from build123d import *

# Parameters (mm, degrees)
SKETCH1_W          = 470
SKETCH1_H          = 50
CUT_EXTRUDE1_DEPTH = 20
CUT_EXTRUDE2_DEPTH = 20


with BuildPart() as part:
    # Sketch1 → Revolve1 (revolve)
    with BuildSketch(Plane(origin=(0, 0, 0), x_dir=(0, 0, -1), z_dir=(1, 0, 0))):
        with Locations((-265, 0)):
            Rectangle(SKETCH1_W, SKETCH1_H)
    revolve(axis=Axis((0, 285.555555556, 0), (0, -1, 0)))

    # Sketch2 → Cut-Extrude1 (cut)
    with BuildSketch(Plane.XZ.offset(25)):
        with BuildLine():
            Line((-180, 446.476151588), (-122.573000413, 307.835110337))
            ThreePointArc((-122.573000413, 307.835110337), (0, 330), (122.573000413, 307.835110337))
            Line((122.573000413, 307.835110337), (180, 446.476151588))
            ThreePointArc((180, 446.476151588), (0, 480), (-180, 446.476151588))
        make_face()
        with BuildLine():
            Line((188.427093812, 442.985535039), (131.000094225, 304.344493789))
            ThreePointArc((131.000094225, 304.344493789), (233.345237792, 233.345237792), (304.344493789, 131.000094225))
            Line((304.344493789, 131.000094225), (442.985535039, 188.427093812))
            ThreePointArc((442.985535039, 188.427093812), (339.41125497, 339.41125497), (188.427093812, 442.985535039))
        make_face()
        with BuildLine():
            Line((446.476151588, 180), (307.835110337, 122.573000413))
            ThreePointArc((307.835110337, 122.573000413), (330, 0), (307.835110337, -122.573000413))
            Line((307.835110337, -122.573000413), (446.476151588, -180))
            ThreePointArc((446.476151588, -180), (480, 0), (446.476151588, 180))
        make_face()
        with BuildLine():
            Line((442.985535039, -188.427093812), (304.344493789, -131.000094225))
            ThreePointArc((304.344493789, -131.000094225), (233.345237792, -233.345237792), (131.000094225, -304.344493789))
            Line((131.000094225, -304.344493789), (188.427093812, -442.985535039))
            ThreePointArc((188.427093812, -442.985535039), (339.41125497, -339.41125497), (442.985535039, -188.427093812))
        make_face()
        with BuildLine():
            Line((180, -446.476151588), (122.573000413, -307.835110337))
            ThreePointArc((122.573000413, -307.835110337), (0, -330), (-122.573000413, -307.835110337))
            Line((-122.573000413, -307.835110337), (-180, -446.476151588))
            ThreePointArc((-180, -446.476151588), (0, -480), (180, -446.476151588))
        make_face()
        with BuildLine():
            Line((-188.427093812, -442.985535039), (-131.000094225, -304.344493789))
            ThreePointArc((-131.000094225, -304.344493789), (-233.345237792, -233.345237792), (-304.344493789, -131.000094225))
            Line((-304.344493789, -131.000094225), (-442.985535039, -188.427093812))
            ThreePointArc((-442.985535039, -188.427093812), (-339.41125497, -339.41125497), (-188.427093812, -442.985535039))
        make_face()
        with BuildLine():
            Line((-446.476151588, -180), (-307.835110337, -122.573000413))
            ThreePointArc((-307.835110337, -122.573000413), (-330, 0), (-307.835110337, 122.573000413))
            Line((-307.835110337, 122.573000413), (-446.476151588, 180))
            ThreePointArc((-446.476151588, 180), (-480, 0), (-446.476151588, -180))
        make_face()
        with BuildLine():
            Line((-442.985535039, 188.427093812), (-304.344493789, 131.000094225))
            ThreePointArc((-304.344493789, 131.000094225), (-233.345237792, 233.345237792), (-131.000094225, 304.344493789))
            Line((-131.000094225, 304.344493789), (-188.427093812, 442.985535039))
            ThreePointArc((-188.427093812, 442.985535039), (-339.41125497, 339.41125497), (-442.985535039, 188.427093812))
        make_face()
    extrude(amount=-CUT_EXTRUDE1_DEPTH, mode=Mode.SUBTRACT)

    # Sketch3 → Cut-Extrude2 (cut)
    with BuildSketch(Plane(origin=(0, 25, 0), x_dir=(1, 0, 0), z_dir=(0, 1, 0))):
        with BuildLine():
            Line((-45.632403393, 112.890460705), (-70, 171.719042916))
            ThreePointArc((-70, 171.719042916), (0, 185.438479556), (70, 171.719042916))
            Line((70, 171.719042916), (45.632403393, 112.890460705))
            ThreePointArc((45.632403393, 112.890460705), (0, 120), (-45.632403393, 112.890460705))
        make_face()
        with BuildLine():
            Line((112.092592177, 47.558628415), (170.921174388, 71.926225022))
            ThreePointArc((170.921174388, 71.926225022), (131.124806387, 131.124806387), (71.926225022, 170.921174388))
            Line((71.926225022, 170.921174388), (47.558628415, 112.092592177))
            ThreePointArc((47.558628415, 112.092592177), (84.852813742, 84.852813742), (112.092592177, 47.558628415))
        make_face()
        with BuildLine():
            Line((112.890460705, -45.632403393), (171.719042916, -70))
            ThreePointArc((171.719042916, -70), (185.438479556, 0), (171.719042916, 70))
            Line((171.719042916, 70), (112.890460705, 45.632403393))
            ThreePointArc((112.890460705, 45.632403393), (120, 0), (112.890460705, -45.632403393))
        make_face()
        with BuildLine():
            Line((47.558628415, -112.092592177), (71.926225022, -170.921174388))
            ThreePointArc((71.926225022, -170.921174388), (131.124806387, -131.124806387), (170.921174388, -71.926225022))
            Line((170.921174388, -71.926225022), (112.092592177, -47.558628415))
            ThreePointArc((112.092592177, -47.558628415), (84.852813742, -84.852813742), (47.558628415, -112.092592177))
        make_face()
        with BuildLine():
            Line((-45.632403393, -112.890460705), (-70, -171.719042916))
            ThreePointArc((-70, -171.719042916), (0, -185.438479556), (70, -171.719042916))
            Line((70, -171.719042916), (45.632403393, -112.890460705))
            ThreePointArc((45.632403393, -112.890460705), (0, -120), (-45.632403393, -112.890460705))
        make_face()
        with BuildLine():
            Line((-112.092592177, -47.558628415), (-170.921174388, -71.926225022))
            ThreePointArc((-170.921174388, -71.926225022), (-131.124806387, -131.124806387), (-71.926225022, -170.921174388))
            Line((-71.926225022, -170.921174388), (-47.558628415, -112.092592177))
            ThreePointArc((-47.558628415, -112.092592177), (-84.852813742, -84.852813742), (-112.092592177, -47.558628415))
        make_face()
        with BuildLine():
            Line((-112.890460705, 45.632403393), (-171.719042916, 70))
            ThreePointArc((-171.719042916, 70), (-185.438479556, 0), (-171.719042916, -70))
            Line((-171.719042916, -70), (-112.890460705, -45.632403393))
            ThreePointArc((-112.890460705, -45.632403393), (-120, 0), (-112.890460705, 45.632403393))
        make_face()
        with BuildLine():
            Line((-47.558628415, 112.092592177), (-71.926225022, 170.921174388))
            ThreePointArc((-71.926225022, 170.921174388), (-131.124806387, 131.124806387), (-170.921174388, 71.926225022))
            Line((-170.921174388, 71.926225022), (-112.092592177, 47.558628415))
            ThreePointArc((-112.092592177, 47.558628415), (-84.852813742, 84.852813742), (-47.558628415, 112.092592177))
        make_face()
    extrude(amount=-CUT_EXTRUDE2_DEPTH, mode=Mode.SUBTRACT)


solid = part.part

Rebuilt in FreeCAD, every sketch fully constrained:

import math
import FreeCAD as App
import Part
import Sketcher
Q = App.Units.Quantity

doc = App.newDocument("Part")
body = doc.addObject("PartDesign::Body", "Body")

sketch1 = body.newObject("Sketcher::SketchObject", "Sketch")
sketch1.AttachmentSupport = (doc.getObject("YZ_Plane"), [""])
sketch1.MapMode = "FlatFace"
sketch1.addGeometry([
    Part.LineSegment(App.Vector(25, 500, 0), App.Vector(-25, 500, 0)),
    Part.LineSegment(App.Vector(-25, 500, 0), App.Vector(-25, 30, 0)),
    Part.LineSegment(App.Vector(-25, 30, 0), App.Vector(25, 30, 0)),
    Part.LineSegment(App.Vector(25, 30, 0), App.Vector(25, 500, 0)),
], False)
sketch1.addConstraint([
    Sketcher.Constraint("Coincident", 0, 2, 1, 1),
    Sketcher.Constraint("Coincident", 1, 2, 2, 1),
    Sketcher.Constraint("Coincident", 2, 2, 3, 1),
    Sketcher.Constraint("Coincident", 3, 2, 0, 1),
    Sketcher.Constraint("Horizontal", 0),
    Sketcher.Constraint("Vertical", 1),
    Sketcher.Constraint("Horizontal", 2),
    Sketcher.Constraint("Vertical", 3),
    Sketcher.Constraint("DistanceX", 0, 2, 0, 1, 50.0),
    Sketcher.Constraint("DistanceY", 1, 2, 1, 1, 470.0),
    Sketcher.Constraint("DistanceX", 0, 2, -1, 1, 25.0),
    Sketcher.Constraint("DistanceY", -1, 1, 0, 2, 500.0),
])
revolution = body.newObject("PartDesign::Revolution", "Revolution")
revolution.Profile = sketch1
revolution.ReferenceAxis = (sketch1, ["H_Axis"])
revolution.Angle = 360

sketch2 = body.newObject("Sketcher::SketchObject", "Sketch001")
sketch2.AttachmentSupport = (doc.getObject("XZ_Plane"), [""])
sketch2.MapMode = "FlatFace"
sketch2.AttachmentOffset = App.Placement(App.Vector(0, 0, 25), App.Rotation())
sketch2.addGeometry([
    Part.LineSegment(App.Vector(-180, 446.476152, 0), App.Vector(-122.573, 307.83511, 0)),
    Part.ArcOfCircle(Part.Circle(App.Vector(0, -20, 0), App.Vector(0, 0, 1), 350), math.radians(69.499927), math.radians(110.500073)),
    Part.LineSegment(App.Vector(122.573, 307.83511, 0), App.Vector(180, 446.476152, 0)),
    Part.ArcOfCircle(Part.Circle(App.Vector(0, -20, 0), App.Vector(0, 0, 1), 500), math.radians(68.899804), math.radians(111.100196)),
    Part.LineSegment(App.Vector(188.427094, 442.985535, 0), App.Vector(131.000094, 304.344494, 0)),
    Part.ArcOfCircle(Part.Circle(App.Vector(-14.142136, -14.142136, 0), App.Vector(0, 0, 1), 350), math.radians(24.499927), math.radians(65.500073)),
    Part.LineSegment(App.Vector(304.344494, 131.000094, 0), App.Vector(442.985535, 188.427094, 0)),
    Part.ArcOfCircle(Part.Circle(App.Vector(-14.142136, -14.142136, 0), App.Vector(0, 0, 1), 500), math.radians(23.899804), math.radians(66.100196)),
    Part.LineSegment(App.Vector(446.476152, 180, 0), App.Vector(307.83511, 122.573, 0)),
    Part.ArcOfCircle(Part.Circle(App.Vector(-20, 0, 0), App.Vector(0, 0, 1), 350), math.radians(-20.500073), math.radians(20.500073)),
    Part.LineSegment(App.Vector(307.83511, -122.573, 0), App.Vector(446.476152, -180, 0)),
    Part.ArcOfCircle(Part.Circle(App.Vector(-20, 0, 0), App.Vector(0, 0, 1), 500), math.radians(-21.100196), math.radians(21.100196)),
    Part.LineSegment(App.Vector(442.985535, -188.427094, 0), App.Vector(304.344494, -131.000094, 0)),
    Part.ArcOfCircle(Part.Circle(App.Vector(-14.142136, 14.142136, 0), App.Vector(0, 0, 1), 350), math.radians(-65.500073), math.radians(-24.499927)),
    Part.LineSegment(App.Vector(131.000094, -304.344494, 0), App.Vector(188.427094, -442.985535, 0)),
    Part.ArcOfCircle(Part.Circle(App.Vector(-14.142136, 14.142136, 0), App.Vector(0, 0, 1), 500), math.radians(-66.100196), math.radians(-23.899804)),
    Part.LineSegment(App.Vector(180, -446.476152, 0), App.Vector(122.573, -307.83511, 0)),
    Part.ArcOfCircle(Part.Circle(App.Vector(0, 20, 0), App.Vector(0, 0, 1), 350), math.radians(-110.500073), math.radians(-69.499927)),
    Part.LineSegment(App.Vector(-122.573, -307.83511, 0), App.Vector(-180, -446.476152, 0)),
    Part.ArcOfCircle(Part.Circle(App.Vector(0, 20, 0), App.Vector(0, 0, 1), 500), math.radians(-111.100196), math.radians(-68.899804)),
    Part.LineSegment(App.Vector(-188.427094, -442.985535, 0), App.Vector(-131.000094, -304.344494, 0)),
    Part.ArcOfCircle(Part.Circle(App.Vector(14.142136, 14.142136, 0), App.Vector(0, 0, 1), 350), math.radians(-155.500073), math.radians(-114.499927)),
    Part.LineSegment(App.Vector(-304.344494, -131.000094, 0), App.Vector(-442.985535, -188.427094, 0)),
    Part.ArcOfCircle(Part.Circle(App.Vector(14.142136, 14.142136, 0), App.Vector(0, 0, 1), 500), math.radians(-156.100196), math.radians(-113.899804)),
    Part.LineSegment(App.Vector(-446.476152, -180, 0), App.Vector(-307.83511, -122.573, 0)),
    Part.ArcOfCircle(Part.Circle(App.Vector(20, 0, 0), App.Vector(0, 0, 1), 350), math.radians(159.499927), math.radians(200.500073)),
    Part.LineSegment(App.Vector(-307.83511, 122.573, 0), App.Vector(-446.476152, 180, 0)),
    Part.ArcOfCircle(Part.Circle(App.Vector(20, 0, 0), App.Vector(0, 0, 1), 500), math.radians(158.899804), math.radians(201.100196)),
    Part.LineSegment(App.Vector(-442.985535, 188.427094, 0), App.Vector(-304.344494, 131.000094, 0)),
    Part.ArcOfCircle(Part.Circle(App.Vector(14.142136, -14.142136, 0), App.Vector(0, 0, 1), 350), math.radians(114.499927), math.radians(155.500073)),
    Part.LineSegment(App.Vector(-131.000094, 304.344494, 0), App.Vector(-188.427094, 442.985535, 0)),
    Part.ArcOfCircle(Part.Circle(App.Vector(14.142136, -14.142136, 0), App.Vector(0, 0, 1), 500), math.radians(113.899804), math.radians(156.100196)),
], False)
sketch2.addConstraint([
    Sketcher.Constraint("Coincident", 0, 2, 1, 2),
    Sketcher.Constraint("Coincident", 1, 1, 2, 1),
    Sketcher.Constraint("Coincident", 2, 2, 3, 1),
    Sketcher.Constraint("Coincident", 3, 2, 0, 1),
    Sketcher.Constraint("Coincident", 4, 2, 5, 2),
    Sketcher.Constraint("Coincident", 5, 1, 6, 1),
    Sketcher.Constraint("Coincident", 6, 2, 7, 1),
    Sketcher.Constraint("Coincident", 7, 2, 4, 1),
    Sketcher.Constraint("Coincident", 8, 2, 9, 2),
    Sketcher.Constraint("Coincident", 9, 1, 10, 1),
    Sketcher.Constraint("Coincident", 10, 2, 11, 1),
    Sketcher.Constraint("Coincident", 11, 2, 8, 1),
    Sketcher.Constraint("Coincident", 12, 2, 13, 2),
    Sketcher.Constraint("Coincident", 13, 1, 14, 1),
    Sketcher.Constraint("Coincident", 14, 2, 15, 1),
    Sketcher.Constraint("Coincident", 15, 2, 12, 1),
    Sketcher.Constraint("Coincident", 16, 2, 17, 2),
    Sketcher.Constraint("Coincident", 17, 1, 18, 1),
    Sketcher.Constraint("Coincident", 18, 2, 19, 1),
    Sketcher.Constraint("Coincident", 19, 2, 16, 1),
    Sketcher.Constraint("Coincident", 20, 2, 21, 2),
    Sketcher.Constraint("Coincident", 21, 1, 22, 1),
    Sketcher.Constraint("Coincident", 22, 2, 23, 1),
    Sketcher.Constraint("Coincident", 23, 2, 20, 1),
    Sketcher.Constraint("Coincident", 24, 2, 25, 2),
    Sketcher.Constraint("Coincident", 25, 1, 26, 1),
    Sketcher.Constraint("Coincident", 26, 2, 27, 1),
    Sketcher.Constraint("Coincident", 27, 2, 24, 1),
    Sketcher.Constraint("Coincident", 28, 2, 29, 2),
    Sketcher.Constraint("Coincident", 29, 1, 30, 1),
    Sketcher.Constraint("Coincident", 30, 2, 31, 1),
    Sketcher.Constraint("Coincident", 31, 2, 28, 1),
    Sketcher.Constraint("Coincident", 3, 3, 1, 3),
    Sketcher.Constraint("Coincident", 7, 3, 5, 3),
    Sketcher.Constraint("Coincident", 11, 3, 9, 3),
    Sketcher.Constraint("Coincident", 15, 3, 13, 3),
    Sketcher.Constraint("Coincident", 19, 3, 17, 3),
    Sketcher.Constraint("Coincident", 23, 3, 21, 3),
    Sketcher.Constraint("Coincident", 27, 3, 25, 3),
    Sketcher.Constraint("Coincident", 31, 3, 29, 3),
    Sketcher.Constraint("Equal", 1, 5),
    Sketcher.Constraint("Equal", 3, 7),
    Sketcher.Constraint("Equal", 5, 9),
    Sketcher.Constraint("Equal", 7, 11),
    Sketcher.Constraint("Equal", 9, 13),
    Sketcher.Constraint("Equal", 11, 15),
    Sketcher.Constraint("Equal", 13, 17),
    Sketcher.Constraint("Equal", 15, 19),
    Sketcher.Constraint("Equal", 17, 21),
    Sketcher.Constraint("Equal", 19, 23),
    Sketcher.Constraint("Equal", 21, 25),
    Sketcher.Constraint("Equal", 23, 27),
    Sketcher.Constraint("Equal", 25, 29),
    Sketcher.Constraint("Equal", 27, 31),
    Sketcher.Constraint("Symmetric", 1, 3, 17, 3, -1, 1),
    Sketcher.Constraint("Symmetric", 5, 3, 21, 3, -1, 1),
    Sketcher.Constraint("Symmetric", 9, 3, 25, 3, -1, 1),
    Sketcher.Constraint("Symmetric", 13, 3, 29, 3, -1, 1),
    Sketcher.Constraint("Symmetric", 13, 3, 21, 3, -2),
    Sketcher.Constraint("Symmetric", 0, 2, 1, 1, -2),
    Sketcher.Constraint("Symmetric", 9, 1, 24, 2, -2),
    Sketcher.Constraint("Parallel", 2, 4),
    Sketcher.Constraint("Perpendicular", 0, 6),
    Sketcher.Constraint("Parallel", 6, 8),
    Sketcher.Constraint("Perpendicular", 4, 10),
    Sketcher.Constraint("Parallel", 10, 12),
    Sketcher.Constraint("Perpendicular", 8, 14),
    Sketcher.Constraint("Parallel", 14, 16),
    Sketcher.Constraint("Perpendicular", 12, 18),
    Sketcher.Constraint("Parallel", 18, 20),
    Sketcher.Constraint("Perpendicular", 16, 22),
    Sketcher.Constraint("Parallel", 22, 24),
    Sketcher.Constraint("Perpendicular", 20, 26),
    Sketcher.Constraint("Parallel", 26, 28),
    Sketcher.Constraint("Perpendicular", 24, 30),
    Sketcher.Constraint("Horizontal", 16, 2, 17, 1),
    Sketcher.Constraint("Horizontal", 13, 1, 20, 2),
    Sketcher.Constraint("Horizontal", 12, 2, 21, 1),
    Sketcher.Constraint("Horizontal", 8, 2, 25, 1),
    Sketcher.Constraint("Horizontal", 5, 1, 28, 2),
    Sketcher.Constraint("Horizontal", 4, 2, 29, 1),
    Sketcher.Constraint("Vertical", 8, 2, 9, 1),
    Sketcher.Constraint("Vertical", 5, 1, 12, 2),
    Sketcher.Constraint("Vertical", 4, 2, 13, 1),
    Sketcher.Constraint("Vertical", 1, 1, 16, 2),
    Sketcher.Constraint("Equal", 0, 2),
    Sketcher.Constraint("Equal", 2, 4),
    Sketcher.Constraint("Equal", 4, 6),
    Sketcher.Constraint("Equal", 6, 8),
    Sketcher.Constraint("Radius", 1, 350.0),
    Sketcher.Constraint("Radius", 3, 500.0),
    Sketcher.Constraint("DistanceY", 1, 3, -1, 1, 20.0),
    Sketcher.Constraint("DistanceX", 9, 3, -1, 1, 20.0),
    Sketcher.Constraint("DistanceX", -1, 1, 2, 2, 180.0),
    Sketcher.Constraint("Angle", 0, Q("-67.5 deg")),
    Sketcher.Constraint("DistanceX", 21, 3, 6, 2, 428.843399),
    Sketcher.Constraint("DistanceY", 14, 2, 29, 3, 428.843399),
])
pocket1 = body.newObject("PartDesign::Pocket", "Pocket")
pocket1.Profile = sketch2
pocket1.Length = 20

sketch3 = body.newObject("Sketcher::SketchObject", "Sketch002")
sketch3.AttachmentSupport = (doc.getObject("XZ_Plane"), [""])
sketch3.MapMode = "FlatFace"
sketch3.AttachmentOffset = App.Placement(App.Vector(0, 0, -25), App.Rotation())
sketch3.addGeometry([
    Part.LineSegment(App.Vector(-70, -172, 0), App.Vector(-46, -113, 0)),
    Part.ArcOfCircle(Part.Circle(App.Vector(0, 30, 0), App.Vector(0, 0, 1), 150), math.radians(-108), math.radians(-72)),
    Part.LineSegment(App.Vector(46, -113, 0), App.Vector(70, -172, 0)),
    Part.ArcOfCircle(Part.Circle(App.Vector(0, 0, 0), App.Vector(0, 0, 1), 185), math.radians(-112), math.radians(-68)),
    Part.LineSegment(App.Vector(112, -48, 0), App.Vector(171, -72, 0)),
    Part.ArcOfCircle(Part.Circle(App.Vector(0, 0, 0), App.Vector(0, 0, 1), 185), math.radians(-67), math.radians(-23)),
    Part.LineSegment(App.Vector(72, -171, 0), App.Vector(48, -112, 0)),
    Part.ArcOfCircle(Part.Circle(App.Vector(-21, 21, 0), App.Vector(0, 0, 1), 150), math.radians(-63), math.radians(-27)),
    Part.LineSegment(App.Vector(113, 46, 0), App.Vector(172, 70, 0)),
    Part.ArcOfCircle(Part.Circle(App.Vector(0, 0, 0), App.Vector(0, 0, 1), 185), math.radians(-22), math.radians(22)),
    Part.LineSegment(App.Vector(172, -70, 0), App.Vector(113, -46, 0)),
    Part.ArcOfCircle(Part.Circle(App.Vector(-30, 0, 0), App.Vector(0, 0, 1), 150), math.radians(-18), math.radians(18)),
    Part.LineSegment(App.Vector(48, 112, 0), App.Vector(72, 171, 0)),
    Part.ArcOfCircle(Part.Circle(App.Vector(0, 0, 0), App.Vector(0, 0, 1), 185), math.radians(23), math.radians(67)),
    Part.LineSegment(App.Vector(171, 72, 0), App.Vector(112, 48, 0)),
    Part.ArcOfCircle(Part.Circle(App.Vector(-21, -21, 0), App.Vector(0, 0, 1), 150), math.radians(27), math.radians(63)),
    Part.LineSegment(App.Vector(-46, 113, 0), App.Vector(-70, 172, 0)),
    Part.ArcOfCircle(Part.Circle(App.Vector(0, 0, 0), App.Vector(0, 0, 1), 185), math.radians(68), math.radians(112)),
    Part.LineSegment(App.Vector(70, 172, 0), App.Vector(46, 113, 0)),
    Part.ArcOfCircle(Part.Circle(App.Vector(0, -30, 0), App.Vector(0, 0, 1), 150), math.radians(72), math.radians(108)),
    Part.LineSegment(App.Vector(-112, 48, 0), App.Vector(-171, 72, 0)),
    Part.ArcOfCircle(Part.Circle(App.Vector(0, 0, 0), App.Vector(0, 0, 1), 185), math.radians(113), math.radians(157)),
    Part.LineSegment(App.Vector(-72, 171, 0), App.Vector(-48, 112, 0)),
    Part.ArcOfCircle(Part.Circle(App.Vector(21, -21, 0), App.Vector(0, 0, 1), 150), math.radians(117), math.radians(153)),
    Part.LineSegment(App.Vector(-113, -46, 0), App.Vector(-172, -70, 0)),
    Part.ArcOfCircle(Part.Circle(App.Vector(0, 0, 0), App.Vector(0, 0, 1), 185), math.radians(158), math.radians(202)),
    Part.LineSegment(App.Vector(-172, 70, 0), App.Vector(-113, 46, 0)),
    Part.ArcOfCircle(Part.Circle(App.Vector(30, 0, 0), App.Vector(0, 0, 1), 150), math.radians(162), math.radians(198)),
    Part.LineSegment(App.Vector(-48, -112, 0), App.Vector(-72, -171, 0)),
    Part.ArcOfCircle(Part.Circle(App.Vector(0, 0, 0), App.Vector(0, 0, 1), 185), math.radians(-157), math.radians(-113)),
    Part.LineSegment(App.Vector(-171, -72, 0), App.Vector(-112, -48, 0)),
    Part.ArcOfCircle(Part.Circle(App.Vector(21, 21, 0), App.Vector(0, 0, 1), 150), math.radians(-153), math.radians(-117)),
], False)
sketch3.addConstraint([
    Sketcher.Constraint("Coincident", 0, 2, 1, 1),
    Sketcher.Constraint("Coincident", 1, 2, 2, 1),
    Sketcher.Constraint("Coincident", 2, 2, 3, 2),
    Sketcher.Constraint("Coincident", 3, 1, 0, 1),
    Sketcher.Constraint("Coincident", 4, 2, 5, 2),
    Sketcher.Constraint("Coincident", 5, 1, 6, 1),
    Sketcher.Constraint("Coincident", 6, 2, 7, 1),
    Sketcher.Constraint("Coincident", 7, 2, 4, 1),
    Sketcher.Constraint("Coincident", 8, 2, 9, 2),
    Sketcher.Constraint("Coincident", 9, 1, 10, 1),
    Sketcher.Constraint("Coincident", 10, 2, 11, 1),
    Sketcher.Constraint("Coincident", 11, 2, 8, 1),
    Sketcher.Constraint("Coincident", 12, 2, 13, 2),
    Sketcher.Constraint("Coincident", 13, 1, 14, 1),
    Sketcher.Constraint("Coincident", 14, 2, 15, 1),
    Sketcher.Constraint("Coincident", 15, 2, 12, 1),
    Sketcher.Constraint("Coincident", 16, 2, 17, 2),
    Sketcher.Constraint("Coincident", 17, 1, 18, 1),
    Sketcher.Constraint("Coincident", 18, 2, 19, 1),
    Sketcher.Constraint("Coincident", 19, 2, 16, 1),
    Sketcher.Constraint("Coincident", 20, 2, 21, 2),
    Sketcher.Constraint("Coincident", 21, 1, 22, 1),
    Sketcher.Constraint("Coincident", 22, 2, 23, 1),
    Sketcher.Constraint("Coincident", 23, 2, 20, 1),
    Sketcher.Constraint("Coincident", 24, 2, 25, 2),
    Sketcher.Constraint("Coincident", 25, 1, 26, 1),
    Sketcher.Constraint("Coincident", 26, 2, 27, 1),
    Sketcher.Constraint("Coincident", 27, 2, 24, 1),
    Sketcher.Constraint("Coincident", 28, 2, 29, 2),
    Sketcher.Constraint("Coincident", 29, 1, 30, 1),
    Sketcher.Constraint("Coincident", 30, 2, 31, 1),
    Sketcher.Constraint("Coincident", 31, 2, 28, 1),
    Sketcher.Constraint("Coincident", 3, 3, -1, 1),
    Sketcher.Constraint("Coincident", 5, 3, -1, 1),
    Sketcher.Constraint("Coincident", 9, 3, -1, 1),
    Sketcher.Constraint("Coincident", 13, 3, -1, 1),
    Sketcher.Constraint("Coincident", 17, 3, -1, 1),
    Sketcher.Constraint("Coincident", 21, 3, -1, 1),
    Sketcher.Constraint("Coincident", 25, 3, -1, 1),
    Sketcher.Constraint("Coincident", 29, 3, -1, 1),
    Sketcher.Constraint("Equal", 3, 5),
    Sketcher.Constraint("Equal", 1, 7),
    Sketcher.Constraint("Equal", 5, 9),
    Sketcher.Constraint("Equal", 7, 11),
    Sketcher.Constraint("Equal", 9, 13),
    Sketcher.Constraint("Equal", 11, 15),
    Sketcher.Constraint("Equal", 13, 17),
    Sketcher.Constraint("Equal", 15, 19),
    Sketcher.Constraint("Equal", 17, 21),
    Sketcher.Constraint("Equal", 19, 23),
    Sketcher.Constraint("Equal", 21, 25),
    Sketcher.Constraint("Equal", 23, 27),
    Sketcher.Constraint("Equal", 25, 29),
    Sketcher.Constraint("Equal", 27, 31),
    Sketcher.Constraint("Symmetric", 1, 3, 19, 3, -1, 1),
    Sketcher.Constraint("Symmetric", 7, 3, 23, 3, -1, 1),
    Sketcher.Constraint("Symmetric", 11, 3, 27, 3, -1, 1),
    Sketcher.Constraint("Symmetric", 15, 3, 31, 3, -1, 1),
    Sketcher.Constraint("Symmetric", 15, 3, 23, 3, -2),
    Sketcher.Constraint("Symmetric", 0, 2, 1, 2, -2),
    Sketcher.Constraint("Symmetric", 11, 2, 26, 2, -2),
    Sketcher.Constraint("Perpendicular", 0, 4),
    Sketcher.Constraint("Parallel", 2, 6),
    Sketcher.Constraint("Perpendicular", 6, 8),
    Sketcher.Constraint("Parallel", 4, 10),
    Sketcher.Constraint("Perpendicular", 10, 12),
    Sketcher.Constraint("Parallel", 8, 14),
    Sketcher.Constraint("Perpendicular", 14, 16),
    Sketcher.Constraint("Parallel", 12, 18),
    Sketcher.Constraint("Perpendicular", 18, 20),
    Sketcher.Constraint("Parallel", 16, 22),
    Sketcher.Constraint("Perpendicular", 22, 24),
    Sketcher.Constraint("Parallel", 20, 26),
    Sketcher.Constraint("Perpendicular", 26, 28),
    Sketcher.Constraint("Parallel", 24, 30),
    Sketcher.Constraint("Horizontal", 2, 2, 3, 1),
    Sketcher.Constraint("Horizontal", 16, 2, 17, 1),
    Sketcher.Constraint("Horizontal", 13, 1, 20, 2),
    Sketcher.Constraint("Horizontal", 12, 2, 21, 1),
    Sketcher.Constraint("Horizontal", 9, 1, 24, 2),
    Sketcher.Constraint("Horizontal", 5, 1, 28, 2),
    Sketcher.Constraint("Horizontal", 4, 2, 29, 1),
    Sketcher.Constraint("Vertical", 8, 2, 9, 1),
    Sketcher.Constraint("Vertical", 5, 1, 12, 2),
    Sketcher.Constraint("Vertical", 4, 2, 13, 1),
    Sketcher.Constraint("Vertical", 3, 1, 16, 2),
    Sketcher.Constraint("Equal", 2, 4),
    Sketcher.Constraint("Equal", 4, 6),
    Sketcher.Constraint("Equal", 6, 8),
    Sketcher.Constraint("Radius", 1, 150.0),
    Sketcher.Constraint("DistanceY", -1, 1, 1, 3, 30.0),
    Sketcher.Constraint("DistanceX", 11, 3, -1, 1, 30.0),
    Sketcher.Constraint("DistanceX", -1, 1, 2, 2, 70.0),
    Sketcher.Constraint("Angle", 0, Q("67.5 deg")),
    Sketcher.Constraint("Radius", 3, 185.43848),
    Sketcher.Constraint("DistanceX", 0, 2, 15, 3, 24.4192),
    Sketcher.Constraint("DistanceX", -1, 1, 6, 2, 47.558628),
])
pocket2 = body.newObject("PartDesign::Pocket", "Pocket001")
pocket2.Profile = sketch3
pocket2.Length = 20
pocket2.Reversed = True

doc.recompute()
